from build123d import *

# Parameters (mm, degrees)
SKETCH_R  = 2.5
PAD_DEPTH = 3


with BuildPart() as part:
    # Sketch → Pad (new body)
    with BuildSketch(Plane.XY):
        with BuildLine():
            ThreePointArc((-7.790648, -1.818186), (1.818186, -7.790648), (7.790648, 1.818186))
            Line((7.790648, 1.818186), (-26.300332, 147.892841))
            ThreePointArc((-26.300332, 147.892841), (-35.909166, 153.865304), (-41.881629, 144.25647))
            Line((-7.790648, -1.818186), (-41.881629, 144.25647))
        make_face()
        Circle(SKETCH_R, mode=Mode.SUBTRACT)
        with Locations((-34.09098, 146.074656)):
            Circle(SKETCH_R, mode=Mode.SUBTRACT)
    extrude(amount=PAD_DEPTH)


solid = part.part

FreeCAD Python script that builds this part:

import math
import FreeCAD as App
import Part
import Sketcher

doc = App.newDocument("Part")
params = doc.addObject("Spreadsheet::Sheet", "Params")
for row, (alias, value) in enumerate([
    ("sketch1_diameter", "5 mm"),
    ("sketch1_radius", "8 mm"),
    ("sketch1_length", "149.999999 mm"),
    ("pad1_length", "3 mm"),
], start=1):
    params.set(f"A{row}", alias)
    params.set(f"B{row}", "=" + value)
    params.setAlias(f"B{row}", alias)

body = doc.addObject("PartDesign::Body", "Body")

# Sketch on XY plane
sketch1 = body.newObject("Sketcher::SketchObject", "Sketch")
sketch1.AttachmentSupport = (doc.getObject("XY_Plane"), [""])
sketch1.MapMode = "FlatFace"
sketch1.addGeometry([
    Part.ArcOfCircle(Part.Circle(App.Vector(0, 0, 0), App.Vector(0, 0, 1), 8), math.radians(-167), math.radians(13)),  # 0
    Part.LineSegment(App.Vector(7.8, 1.8, 0), App.Vector(-26.3, 147.9, 0)),  # 1
    Part.ArcOfCircle(Part.Circle(App.Vector(-34.1, 146.1, 0), App.Vector(0, 0, 1), 8), math.radians(13), math.radians(193)),  # 2
    Part.LineSegment(App.Vector(-41.9, 144.3, 0), App.Vector(-7.8, -1.8, 0)),  # 3
    Part.Circle(App.Vector(0, 0, 0), App.Vector(0, 0, 1), 2.5),  # 4
    Part.Circle(App.Vector(-34.1, 146.1, 0), App.Vector(0, 0, 1), 2.5),  # 5
], False)
sketch1.addConstraint([
    Sketcher.Constraint("Tangent", 0, 2, 1, 1),
    Sketcher.Constraint("Tangent", 1, 2, 2, 1),
    Sketcher.Constraint("Tangent", 2, 2, 3, 1),
    Sketcher.Constraint("Tangent", 3, 2, 0, 1),
    Sketcher.Constraint("Coincident", 0, 3, -1, 1),
    Sketcher.Constraint("Coincident", 4, 3, -1, 1),
    Sketcher.Constraint("Coincident", 5, 3, 2, 3),
    Sketcher.Constraint("Equal", 0, 2),
    Sketcher.Constraint("Equal", 4, 5),
    Sketcher.Constraint("Diameter", 4, 5.0),
    Sketcher.Constraint("Radius", 0, 8.0),
    Sketcher.Constraint("Distance", 1, 149.999999),
    Sketcher.Constraint("DistanceX", 2, 3, -1, 1, 34.090981),
])
sketch1.setExpression("Constraints[9]", "Params.sketch1_diameter")
sketch1.setExpression("Constraints[10]", "Params.sketch1_radius")
sketch1.setExpression("Constraints[11]", "Params.sketch1_length")
pad1 = body.newObject("PartDesign::Pad", "Pad")
pad1.Profile = sketch1
pad1.setExpression("Length", "Params.pad1_length")

doc.recompute()
